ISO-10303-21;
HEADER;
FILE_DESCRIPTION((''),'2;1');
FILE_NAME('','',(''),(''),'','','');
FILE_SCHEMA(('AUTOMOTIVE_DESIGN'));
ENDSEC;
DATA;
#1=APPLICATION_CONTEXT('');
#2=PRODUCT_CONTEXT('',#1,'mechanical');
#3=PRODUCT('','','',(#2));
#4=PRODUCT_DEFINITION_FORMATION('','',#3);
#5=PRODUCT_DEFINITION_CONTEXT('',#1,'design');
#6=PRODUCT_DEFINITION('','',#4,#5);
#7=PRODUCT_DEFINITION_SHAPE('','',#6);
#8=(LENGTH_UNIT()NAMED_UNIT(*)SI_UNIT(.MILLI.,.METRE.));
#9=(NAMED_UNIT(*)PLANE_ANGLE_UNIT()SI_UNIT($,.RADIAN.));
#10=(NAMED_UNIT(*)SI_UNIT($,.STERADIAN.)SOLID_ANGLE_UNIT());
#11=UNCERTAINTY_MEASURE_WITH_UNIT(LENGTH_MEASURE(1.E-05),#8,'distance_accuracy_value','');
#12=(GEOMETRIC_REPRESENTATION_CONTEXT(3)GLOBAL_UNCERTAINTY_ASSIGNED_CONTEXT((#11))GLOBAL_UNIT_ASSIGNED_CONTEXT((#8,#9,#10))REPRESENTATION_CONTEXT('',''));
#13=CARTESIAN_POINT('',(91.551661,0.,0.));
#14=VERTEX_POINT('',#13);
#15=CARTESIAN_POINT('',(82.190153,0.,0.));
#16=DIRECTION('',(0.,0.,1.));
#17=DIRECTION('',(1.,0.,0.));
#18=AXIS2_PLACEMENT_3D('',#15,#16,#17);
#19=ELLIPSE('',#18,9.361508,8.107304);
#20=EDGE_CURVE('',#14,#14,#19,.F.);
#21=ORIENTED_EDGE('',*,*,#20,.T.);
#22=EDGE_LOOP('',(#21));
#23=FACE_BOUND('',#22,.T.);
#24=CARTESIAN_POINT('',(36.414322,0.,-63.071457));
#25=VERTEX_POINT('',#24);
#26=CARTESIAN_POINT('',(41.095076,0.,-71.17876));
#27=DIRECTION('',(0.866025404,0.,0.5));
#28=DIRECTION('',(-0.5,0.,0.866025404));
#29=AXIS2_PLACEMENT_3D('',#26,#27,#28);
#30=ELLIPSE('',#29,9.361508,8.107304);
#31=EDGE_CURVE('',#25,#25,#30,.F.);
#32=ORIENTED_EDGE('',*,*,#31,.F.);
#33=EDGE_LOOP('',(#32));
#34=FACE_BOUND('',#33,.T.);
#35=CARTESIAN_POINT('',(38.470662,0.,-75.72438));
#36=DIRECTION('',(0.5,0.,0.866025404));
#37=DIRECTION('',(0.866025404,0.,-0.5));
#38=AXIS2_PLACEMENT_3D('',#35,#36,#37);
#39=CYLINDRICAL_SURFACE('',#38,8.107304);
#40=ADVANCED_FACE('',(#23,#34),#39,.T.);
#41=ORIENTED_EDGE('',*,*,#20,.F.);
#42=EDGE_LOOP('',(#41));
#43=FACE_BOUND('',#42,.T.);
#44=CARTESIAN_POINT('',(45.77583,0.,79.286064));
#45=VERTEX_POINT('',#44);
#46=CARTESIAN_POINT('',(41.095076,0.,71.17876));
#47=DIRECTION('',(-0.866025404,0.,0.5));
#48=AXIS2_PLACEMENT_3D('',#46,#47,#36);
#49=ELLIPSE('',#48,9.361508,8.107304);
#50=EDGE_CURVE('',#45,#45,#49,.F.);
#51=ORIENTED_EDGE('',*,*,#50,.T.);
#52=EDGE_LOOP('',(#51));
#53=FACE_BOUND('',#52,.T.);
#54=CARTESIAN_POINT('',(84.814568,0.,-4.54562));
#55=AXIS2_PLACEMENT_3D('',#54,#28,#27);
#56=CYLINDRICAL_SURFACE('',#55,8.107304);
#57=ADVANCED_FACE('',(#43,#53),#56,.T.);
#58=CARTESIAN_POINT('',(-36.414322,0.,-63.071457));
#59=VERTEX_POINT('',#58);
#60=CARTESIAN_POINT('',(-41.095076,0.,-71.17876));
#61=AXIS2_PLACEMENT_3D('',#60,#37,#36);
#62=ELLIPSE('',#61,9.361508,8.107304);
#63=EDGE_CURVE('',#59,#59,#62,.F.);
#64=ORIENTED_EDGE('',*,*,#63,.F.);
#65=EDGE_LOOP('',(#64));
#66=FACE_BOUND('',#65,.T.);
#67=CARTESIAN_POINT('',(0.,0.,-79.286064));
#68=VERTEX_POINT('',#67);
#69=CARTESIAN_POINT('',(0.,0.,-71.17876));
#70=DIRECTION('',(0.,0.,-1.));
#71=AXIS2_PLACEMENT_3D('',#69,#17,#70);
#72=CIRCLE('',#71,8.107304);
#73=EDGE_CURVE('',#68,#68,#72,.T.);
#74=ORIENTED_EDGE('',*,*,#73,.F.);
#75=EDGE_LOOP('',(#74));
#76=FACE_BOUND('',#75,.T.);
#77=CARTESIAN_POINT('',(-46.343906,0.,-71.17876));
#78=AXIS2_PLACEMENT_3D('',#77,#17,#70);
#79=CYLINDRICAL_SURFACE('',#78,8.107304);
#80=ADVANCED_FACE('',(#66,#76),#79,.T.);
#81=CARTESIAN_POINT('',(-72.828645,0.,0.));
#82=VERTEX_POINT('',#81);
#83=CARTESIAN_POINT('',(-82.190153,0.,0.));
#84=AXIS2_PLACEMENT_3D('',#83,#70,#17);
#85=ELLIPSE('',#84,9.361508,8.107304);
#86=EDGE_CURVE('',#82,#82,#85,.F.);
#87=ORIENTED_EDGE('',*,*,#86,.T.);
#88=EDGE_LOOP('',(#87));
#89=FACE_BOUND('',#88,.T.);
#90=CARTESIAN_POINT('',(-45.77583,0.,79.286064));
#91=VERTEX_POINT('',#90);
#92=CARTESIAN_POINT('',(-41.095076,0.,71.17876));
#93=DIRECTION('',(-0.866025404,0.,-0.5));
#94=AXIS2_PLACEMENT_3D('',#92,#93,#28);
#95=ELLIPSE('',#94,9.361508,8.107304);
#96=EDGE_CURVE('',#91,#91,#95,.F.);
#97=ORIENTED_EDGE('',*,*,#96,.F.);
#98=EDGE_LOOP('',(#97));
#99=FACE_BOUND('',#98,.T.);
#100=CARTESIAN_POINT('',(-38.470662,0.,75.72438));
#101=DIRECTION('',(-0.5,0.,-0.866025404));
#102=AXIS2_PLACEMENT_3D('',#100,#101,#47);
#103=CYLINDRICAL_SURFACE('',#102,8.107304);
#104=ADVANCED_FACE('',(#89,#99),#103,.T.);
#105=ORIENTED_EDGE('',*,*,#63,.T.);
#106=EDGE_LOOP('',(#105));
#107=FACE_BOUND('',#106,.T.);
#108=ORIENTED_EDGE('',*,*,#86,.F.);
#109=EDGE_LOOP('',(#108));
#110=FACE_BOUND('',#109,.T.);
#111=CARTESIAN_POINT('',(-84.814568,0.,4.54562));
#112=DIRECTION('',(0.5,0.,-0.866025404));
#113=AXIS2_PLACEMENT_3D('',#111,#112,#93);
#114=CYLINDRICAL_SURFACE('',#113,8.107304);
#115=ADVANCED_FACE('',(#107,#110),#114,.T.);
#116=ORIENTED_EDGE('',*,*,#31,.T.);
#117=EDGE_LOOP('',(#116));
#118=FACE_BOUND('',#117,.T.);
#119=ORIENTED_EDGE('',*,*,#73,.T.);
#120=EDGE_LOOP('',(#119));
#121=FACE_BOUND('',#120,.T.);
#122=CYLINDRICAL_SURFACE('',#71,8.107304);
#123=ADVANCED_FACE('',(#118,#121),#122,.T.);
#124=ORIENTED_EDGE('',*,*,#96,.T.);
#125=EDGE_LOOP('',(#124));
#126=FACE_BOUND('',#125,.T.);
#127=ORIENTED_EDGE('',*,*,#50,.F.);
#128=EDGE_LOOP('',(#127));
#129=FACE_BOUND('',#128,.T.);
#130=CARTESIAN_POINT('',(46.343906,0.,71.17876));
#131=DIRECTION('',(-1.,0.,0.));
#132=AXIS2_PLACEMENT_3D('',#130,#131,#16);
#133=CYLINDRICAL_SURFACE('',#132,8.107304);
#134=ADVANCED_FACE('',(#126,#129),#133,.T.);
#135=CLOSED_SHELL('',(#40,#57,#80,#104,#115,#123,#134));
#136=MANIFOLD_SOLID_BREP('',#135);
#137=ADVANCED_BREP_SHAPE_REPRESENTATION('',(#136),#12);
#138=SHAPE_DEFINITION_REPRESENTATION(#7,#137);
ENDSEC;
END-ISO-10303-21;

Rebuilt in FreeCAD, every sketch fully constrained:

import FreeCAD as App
import Part
import Sketcher
from FreeCAD import Vector
Q = App.Units.Quantity

doc = App.newDocument("Part")
body = doc.addObject("PartDesign::Body", "Body")

sketch1 = body.newObject("Sketcher::SketchObject", "Sketch")
sketch1.AttachmentSupport = (doc.getObject("YZ_Plane"), [""])
sketch1.MapMode = "FlatFace"
sketch1.addGeometry(Part.Circle(Vector(0, -71.17876, 0), Vector(0, 0, 1), 8.107304), False)
sketch1.addConstraint([
    Sketcher.Constraint("PointOnObject", 0, 3, -2),
    Sketcher.Constraint("Diameter", 0, Q("16.214607 mm")),
    Sketcher.Constraint("DistanceY", 0, 3, -1, 1, Q("71.17876 mm")),
])

sketch2 = body.newObject("Sketcher::SketchObject", "Sketch001")
sketch2.AttachmentSupport = (doc.getObject("XZ_Plane"), [""])
sketch2.MapMode = "FlatFace"
sketch2.addGeometry([
    Part.LineSegment(Vector(41.095076, -71.17876, 0), Vector(-41.095076, -71.17876, 0)),
    Part.LineSegment(Vector(-41.095076, -71.17876, 0), Vector(-82.190153, 0, 0)),
    Part.LineSegment(Vector(-82.190153, 0, 0), Vector(-41.095076, 71.17876, 0)),
    Part.LineSegment(Vector(-41.095076, 71.17876, 0), Vector(41.095076, 71.17876, 0)),
    Part.LineSegment(Vector(41.095076, 71.17876, 0), Vector(82.190153, 0, 0)),
    Part.LineSegment(Vector(82.190153, 0, 0), Vector(41.095076, -71.17876, 0)),
], False)
sketch2.addConstraint([
    Sketcher.Constraint("Coincident", 0, 2, 1, 1),
    Sketcher.Constraint("Coincident", 1, 2, 2, 1),
    Sketcher.Constraint("Coincident", 2, 2, 3, 1),
    Sketcher.Constraint("Coincident", 3, 2, 4, 1),
    Sketcher.Constraint("Coincident", 4, 2, 5, 1),
    Sketcher.Constraint("Coincident", 5, 2, 0, 1),
    Sketcher.Constraint("Horizontal", 0),
    Sketcher.Constraint("Horizontal", 3),
    Sketcher.Constraint("Symmetric", 0, 2, 3, 2, -1, 1),
    Sketcher.Constraint("Symmetric", 1, 2, 4, 2, -1, 1),
    Sketcher.Constraint("PointOnObject", 1, 2, -1),
    Sketcher.Constraint("Parallel", 2, 5),
    Sketcher.Constraint("Vertical", 0, 2, 2, 2),
    Sketcher.Constraint("Angle", 1, Q("120 deg")),
    Sketcher.Constraint("DistanceX", 0, 2, 0, 1, Q("82.190153 mm")),
    Sketcher.Constraint("DistanceY", 0, 2, -1, 1, Q("71.17876 mm")),
])
doc.recompute()

additivepipe = body.newObject("PartDesign::AdditivePipe", "AdditivePipe")
additivepipe.Profile = sketch1
additivepipe.Spine = (sketch2, ["Edge1", "Edge2", "Edge3", "Edge4", "Edge5", "Edge6"])
additivepipe.Transition = "Right corner"

doc.recompute()
